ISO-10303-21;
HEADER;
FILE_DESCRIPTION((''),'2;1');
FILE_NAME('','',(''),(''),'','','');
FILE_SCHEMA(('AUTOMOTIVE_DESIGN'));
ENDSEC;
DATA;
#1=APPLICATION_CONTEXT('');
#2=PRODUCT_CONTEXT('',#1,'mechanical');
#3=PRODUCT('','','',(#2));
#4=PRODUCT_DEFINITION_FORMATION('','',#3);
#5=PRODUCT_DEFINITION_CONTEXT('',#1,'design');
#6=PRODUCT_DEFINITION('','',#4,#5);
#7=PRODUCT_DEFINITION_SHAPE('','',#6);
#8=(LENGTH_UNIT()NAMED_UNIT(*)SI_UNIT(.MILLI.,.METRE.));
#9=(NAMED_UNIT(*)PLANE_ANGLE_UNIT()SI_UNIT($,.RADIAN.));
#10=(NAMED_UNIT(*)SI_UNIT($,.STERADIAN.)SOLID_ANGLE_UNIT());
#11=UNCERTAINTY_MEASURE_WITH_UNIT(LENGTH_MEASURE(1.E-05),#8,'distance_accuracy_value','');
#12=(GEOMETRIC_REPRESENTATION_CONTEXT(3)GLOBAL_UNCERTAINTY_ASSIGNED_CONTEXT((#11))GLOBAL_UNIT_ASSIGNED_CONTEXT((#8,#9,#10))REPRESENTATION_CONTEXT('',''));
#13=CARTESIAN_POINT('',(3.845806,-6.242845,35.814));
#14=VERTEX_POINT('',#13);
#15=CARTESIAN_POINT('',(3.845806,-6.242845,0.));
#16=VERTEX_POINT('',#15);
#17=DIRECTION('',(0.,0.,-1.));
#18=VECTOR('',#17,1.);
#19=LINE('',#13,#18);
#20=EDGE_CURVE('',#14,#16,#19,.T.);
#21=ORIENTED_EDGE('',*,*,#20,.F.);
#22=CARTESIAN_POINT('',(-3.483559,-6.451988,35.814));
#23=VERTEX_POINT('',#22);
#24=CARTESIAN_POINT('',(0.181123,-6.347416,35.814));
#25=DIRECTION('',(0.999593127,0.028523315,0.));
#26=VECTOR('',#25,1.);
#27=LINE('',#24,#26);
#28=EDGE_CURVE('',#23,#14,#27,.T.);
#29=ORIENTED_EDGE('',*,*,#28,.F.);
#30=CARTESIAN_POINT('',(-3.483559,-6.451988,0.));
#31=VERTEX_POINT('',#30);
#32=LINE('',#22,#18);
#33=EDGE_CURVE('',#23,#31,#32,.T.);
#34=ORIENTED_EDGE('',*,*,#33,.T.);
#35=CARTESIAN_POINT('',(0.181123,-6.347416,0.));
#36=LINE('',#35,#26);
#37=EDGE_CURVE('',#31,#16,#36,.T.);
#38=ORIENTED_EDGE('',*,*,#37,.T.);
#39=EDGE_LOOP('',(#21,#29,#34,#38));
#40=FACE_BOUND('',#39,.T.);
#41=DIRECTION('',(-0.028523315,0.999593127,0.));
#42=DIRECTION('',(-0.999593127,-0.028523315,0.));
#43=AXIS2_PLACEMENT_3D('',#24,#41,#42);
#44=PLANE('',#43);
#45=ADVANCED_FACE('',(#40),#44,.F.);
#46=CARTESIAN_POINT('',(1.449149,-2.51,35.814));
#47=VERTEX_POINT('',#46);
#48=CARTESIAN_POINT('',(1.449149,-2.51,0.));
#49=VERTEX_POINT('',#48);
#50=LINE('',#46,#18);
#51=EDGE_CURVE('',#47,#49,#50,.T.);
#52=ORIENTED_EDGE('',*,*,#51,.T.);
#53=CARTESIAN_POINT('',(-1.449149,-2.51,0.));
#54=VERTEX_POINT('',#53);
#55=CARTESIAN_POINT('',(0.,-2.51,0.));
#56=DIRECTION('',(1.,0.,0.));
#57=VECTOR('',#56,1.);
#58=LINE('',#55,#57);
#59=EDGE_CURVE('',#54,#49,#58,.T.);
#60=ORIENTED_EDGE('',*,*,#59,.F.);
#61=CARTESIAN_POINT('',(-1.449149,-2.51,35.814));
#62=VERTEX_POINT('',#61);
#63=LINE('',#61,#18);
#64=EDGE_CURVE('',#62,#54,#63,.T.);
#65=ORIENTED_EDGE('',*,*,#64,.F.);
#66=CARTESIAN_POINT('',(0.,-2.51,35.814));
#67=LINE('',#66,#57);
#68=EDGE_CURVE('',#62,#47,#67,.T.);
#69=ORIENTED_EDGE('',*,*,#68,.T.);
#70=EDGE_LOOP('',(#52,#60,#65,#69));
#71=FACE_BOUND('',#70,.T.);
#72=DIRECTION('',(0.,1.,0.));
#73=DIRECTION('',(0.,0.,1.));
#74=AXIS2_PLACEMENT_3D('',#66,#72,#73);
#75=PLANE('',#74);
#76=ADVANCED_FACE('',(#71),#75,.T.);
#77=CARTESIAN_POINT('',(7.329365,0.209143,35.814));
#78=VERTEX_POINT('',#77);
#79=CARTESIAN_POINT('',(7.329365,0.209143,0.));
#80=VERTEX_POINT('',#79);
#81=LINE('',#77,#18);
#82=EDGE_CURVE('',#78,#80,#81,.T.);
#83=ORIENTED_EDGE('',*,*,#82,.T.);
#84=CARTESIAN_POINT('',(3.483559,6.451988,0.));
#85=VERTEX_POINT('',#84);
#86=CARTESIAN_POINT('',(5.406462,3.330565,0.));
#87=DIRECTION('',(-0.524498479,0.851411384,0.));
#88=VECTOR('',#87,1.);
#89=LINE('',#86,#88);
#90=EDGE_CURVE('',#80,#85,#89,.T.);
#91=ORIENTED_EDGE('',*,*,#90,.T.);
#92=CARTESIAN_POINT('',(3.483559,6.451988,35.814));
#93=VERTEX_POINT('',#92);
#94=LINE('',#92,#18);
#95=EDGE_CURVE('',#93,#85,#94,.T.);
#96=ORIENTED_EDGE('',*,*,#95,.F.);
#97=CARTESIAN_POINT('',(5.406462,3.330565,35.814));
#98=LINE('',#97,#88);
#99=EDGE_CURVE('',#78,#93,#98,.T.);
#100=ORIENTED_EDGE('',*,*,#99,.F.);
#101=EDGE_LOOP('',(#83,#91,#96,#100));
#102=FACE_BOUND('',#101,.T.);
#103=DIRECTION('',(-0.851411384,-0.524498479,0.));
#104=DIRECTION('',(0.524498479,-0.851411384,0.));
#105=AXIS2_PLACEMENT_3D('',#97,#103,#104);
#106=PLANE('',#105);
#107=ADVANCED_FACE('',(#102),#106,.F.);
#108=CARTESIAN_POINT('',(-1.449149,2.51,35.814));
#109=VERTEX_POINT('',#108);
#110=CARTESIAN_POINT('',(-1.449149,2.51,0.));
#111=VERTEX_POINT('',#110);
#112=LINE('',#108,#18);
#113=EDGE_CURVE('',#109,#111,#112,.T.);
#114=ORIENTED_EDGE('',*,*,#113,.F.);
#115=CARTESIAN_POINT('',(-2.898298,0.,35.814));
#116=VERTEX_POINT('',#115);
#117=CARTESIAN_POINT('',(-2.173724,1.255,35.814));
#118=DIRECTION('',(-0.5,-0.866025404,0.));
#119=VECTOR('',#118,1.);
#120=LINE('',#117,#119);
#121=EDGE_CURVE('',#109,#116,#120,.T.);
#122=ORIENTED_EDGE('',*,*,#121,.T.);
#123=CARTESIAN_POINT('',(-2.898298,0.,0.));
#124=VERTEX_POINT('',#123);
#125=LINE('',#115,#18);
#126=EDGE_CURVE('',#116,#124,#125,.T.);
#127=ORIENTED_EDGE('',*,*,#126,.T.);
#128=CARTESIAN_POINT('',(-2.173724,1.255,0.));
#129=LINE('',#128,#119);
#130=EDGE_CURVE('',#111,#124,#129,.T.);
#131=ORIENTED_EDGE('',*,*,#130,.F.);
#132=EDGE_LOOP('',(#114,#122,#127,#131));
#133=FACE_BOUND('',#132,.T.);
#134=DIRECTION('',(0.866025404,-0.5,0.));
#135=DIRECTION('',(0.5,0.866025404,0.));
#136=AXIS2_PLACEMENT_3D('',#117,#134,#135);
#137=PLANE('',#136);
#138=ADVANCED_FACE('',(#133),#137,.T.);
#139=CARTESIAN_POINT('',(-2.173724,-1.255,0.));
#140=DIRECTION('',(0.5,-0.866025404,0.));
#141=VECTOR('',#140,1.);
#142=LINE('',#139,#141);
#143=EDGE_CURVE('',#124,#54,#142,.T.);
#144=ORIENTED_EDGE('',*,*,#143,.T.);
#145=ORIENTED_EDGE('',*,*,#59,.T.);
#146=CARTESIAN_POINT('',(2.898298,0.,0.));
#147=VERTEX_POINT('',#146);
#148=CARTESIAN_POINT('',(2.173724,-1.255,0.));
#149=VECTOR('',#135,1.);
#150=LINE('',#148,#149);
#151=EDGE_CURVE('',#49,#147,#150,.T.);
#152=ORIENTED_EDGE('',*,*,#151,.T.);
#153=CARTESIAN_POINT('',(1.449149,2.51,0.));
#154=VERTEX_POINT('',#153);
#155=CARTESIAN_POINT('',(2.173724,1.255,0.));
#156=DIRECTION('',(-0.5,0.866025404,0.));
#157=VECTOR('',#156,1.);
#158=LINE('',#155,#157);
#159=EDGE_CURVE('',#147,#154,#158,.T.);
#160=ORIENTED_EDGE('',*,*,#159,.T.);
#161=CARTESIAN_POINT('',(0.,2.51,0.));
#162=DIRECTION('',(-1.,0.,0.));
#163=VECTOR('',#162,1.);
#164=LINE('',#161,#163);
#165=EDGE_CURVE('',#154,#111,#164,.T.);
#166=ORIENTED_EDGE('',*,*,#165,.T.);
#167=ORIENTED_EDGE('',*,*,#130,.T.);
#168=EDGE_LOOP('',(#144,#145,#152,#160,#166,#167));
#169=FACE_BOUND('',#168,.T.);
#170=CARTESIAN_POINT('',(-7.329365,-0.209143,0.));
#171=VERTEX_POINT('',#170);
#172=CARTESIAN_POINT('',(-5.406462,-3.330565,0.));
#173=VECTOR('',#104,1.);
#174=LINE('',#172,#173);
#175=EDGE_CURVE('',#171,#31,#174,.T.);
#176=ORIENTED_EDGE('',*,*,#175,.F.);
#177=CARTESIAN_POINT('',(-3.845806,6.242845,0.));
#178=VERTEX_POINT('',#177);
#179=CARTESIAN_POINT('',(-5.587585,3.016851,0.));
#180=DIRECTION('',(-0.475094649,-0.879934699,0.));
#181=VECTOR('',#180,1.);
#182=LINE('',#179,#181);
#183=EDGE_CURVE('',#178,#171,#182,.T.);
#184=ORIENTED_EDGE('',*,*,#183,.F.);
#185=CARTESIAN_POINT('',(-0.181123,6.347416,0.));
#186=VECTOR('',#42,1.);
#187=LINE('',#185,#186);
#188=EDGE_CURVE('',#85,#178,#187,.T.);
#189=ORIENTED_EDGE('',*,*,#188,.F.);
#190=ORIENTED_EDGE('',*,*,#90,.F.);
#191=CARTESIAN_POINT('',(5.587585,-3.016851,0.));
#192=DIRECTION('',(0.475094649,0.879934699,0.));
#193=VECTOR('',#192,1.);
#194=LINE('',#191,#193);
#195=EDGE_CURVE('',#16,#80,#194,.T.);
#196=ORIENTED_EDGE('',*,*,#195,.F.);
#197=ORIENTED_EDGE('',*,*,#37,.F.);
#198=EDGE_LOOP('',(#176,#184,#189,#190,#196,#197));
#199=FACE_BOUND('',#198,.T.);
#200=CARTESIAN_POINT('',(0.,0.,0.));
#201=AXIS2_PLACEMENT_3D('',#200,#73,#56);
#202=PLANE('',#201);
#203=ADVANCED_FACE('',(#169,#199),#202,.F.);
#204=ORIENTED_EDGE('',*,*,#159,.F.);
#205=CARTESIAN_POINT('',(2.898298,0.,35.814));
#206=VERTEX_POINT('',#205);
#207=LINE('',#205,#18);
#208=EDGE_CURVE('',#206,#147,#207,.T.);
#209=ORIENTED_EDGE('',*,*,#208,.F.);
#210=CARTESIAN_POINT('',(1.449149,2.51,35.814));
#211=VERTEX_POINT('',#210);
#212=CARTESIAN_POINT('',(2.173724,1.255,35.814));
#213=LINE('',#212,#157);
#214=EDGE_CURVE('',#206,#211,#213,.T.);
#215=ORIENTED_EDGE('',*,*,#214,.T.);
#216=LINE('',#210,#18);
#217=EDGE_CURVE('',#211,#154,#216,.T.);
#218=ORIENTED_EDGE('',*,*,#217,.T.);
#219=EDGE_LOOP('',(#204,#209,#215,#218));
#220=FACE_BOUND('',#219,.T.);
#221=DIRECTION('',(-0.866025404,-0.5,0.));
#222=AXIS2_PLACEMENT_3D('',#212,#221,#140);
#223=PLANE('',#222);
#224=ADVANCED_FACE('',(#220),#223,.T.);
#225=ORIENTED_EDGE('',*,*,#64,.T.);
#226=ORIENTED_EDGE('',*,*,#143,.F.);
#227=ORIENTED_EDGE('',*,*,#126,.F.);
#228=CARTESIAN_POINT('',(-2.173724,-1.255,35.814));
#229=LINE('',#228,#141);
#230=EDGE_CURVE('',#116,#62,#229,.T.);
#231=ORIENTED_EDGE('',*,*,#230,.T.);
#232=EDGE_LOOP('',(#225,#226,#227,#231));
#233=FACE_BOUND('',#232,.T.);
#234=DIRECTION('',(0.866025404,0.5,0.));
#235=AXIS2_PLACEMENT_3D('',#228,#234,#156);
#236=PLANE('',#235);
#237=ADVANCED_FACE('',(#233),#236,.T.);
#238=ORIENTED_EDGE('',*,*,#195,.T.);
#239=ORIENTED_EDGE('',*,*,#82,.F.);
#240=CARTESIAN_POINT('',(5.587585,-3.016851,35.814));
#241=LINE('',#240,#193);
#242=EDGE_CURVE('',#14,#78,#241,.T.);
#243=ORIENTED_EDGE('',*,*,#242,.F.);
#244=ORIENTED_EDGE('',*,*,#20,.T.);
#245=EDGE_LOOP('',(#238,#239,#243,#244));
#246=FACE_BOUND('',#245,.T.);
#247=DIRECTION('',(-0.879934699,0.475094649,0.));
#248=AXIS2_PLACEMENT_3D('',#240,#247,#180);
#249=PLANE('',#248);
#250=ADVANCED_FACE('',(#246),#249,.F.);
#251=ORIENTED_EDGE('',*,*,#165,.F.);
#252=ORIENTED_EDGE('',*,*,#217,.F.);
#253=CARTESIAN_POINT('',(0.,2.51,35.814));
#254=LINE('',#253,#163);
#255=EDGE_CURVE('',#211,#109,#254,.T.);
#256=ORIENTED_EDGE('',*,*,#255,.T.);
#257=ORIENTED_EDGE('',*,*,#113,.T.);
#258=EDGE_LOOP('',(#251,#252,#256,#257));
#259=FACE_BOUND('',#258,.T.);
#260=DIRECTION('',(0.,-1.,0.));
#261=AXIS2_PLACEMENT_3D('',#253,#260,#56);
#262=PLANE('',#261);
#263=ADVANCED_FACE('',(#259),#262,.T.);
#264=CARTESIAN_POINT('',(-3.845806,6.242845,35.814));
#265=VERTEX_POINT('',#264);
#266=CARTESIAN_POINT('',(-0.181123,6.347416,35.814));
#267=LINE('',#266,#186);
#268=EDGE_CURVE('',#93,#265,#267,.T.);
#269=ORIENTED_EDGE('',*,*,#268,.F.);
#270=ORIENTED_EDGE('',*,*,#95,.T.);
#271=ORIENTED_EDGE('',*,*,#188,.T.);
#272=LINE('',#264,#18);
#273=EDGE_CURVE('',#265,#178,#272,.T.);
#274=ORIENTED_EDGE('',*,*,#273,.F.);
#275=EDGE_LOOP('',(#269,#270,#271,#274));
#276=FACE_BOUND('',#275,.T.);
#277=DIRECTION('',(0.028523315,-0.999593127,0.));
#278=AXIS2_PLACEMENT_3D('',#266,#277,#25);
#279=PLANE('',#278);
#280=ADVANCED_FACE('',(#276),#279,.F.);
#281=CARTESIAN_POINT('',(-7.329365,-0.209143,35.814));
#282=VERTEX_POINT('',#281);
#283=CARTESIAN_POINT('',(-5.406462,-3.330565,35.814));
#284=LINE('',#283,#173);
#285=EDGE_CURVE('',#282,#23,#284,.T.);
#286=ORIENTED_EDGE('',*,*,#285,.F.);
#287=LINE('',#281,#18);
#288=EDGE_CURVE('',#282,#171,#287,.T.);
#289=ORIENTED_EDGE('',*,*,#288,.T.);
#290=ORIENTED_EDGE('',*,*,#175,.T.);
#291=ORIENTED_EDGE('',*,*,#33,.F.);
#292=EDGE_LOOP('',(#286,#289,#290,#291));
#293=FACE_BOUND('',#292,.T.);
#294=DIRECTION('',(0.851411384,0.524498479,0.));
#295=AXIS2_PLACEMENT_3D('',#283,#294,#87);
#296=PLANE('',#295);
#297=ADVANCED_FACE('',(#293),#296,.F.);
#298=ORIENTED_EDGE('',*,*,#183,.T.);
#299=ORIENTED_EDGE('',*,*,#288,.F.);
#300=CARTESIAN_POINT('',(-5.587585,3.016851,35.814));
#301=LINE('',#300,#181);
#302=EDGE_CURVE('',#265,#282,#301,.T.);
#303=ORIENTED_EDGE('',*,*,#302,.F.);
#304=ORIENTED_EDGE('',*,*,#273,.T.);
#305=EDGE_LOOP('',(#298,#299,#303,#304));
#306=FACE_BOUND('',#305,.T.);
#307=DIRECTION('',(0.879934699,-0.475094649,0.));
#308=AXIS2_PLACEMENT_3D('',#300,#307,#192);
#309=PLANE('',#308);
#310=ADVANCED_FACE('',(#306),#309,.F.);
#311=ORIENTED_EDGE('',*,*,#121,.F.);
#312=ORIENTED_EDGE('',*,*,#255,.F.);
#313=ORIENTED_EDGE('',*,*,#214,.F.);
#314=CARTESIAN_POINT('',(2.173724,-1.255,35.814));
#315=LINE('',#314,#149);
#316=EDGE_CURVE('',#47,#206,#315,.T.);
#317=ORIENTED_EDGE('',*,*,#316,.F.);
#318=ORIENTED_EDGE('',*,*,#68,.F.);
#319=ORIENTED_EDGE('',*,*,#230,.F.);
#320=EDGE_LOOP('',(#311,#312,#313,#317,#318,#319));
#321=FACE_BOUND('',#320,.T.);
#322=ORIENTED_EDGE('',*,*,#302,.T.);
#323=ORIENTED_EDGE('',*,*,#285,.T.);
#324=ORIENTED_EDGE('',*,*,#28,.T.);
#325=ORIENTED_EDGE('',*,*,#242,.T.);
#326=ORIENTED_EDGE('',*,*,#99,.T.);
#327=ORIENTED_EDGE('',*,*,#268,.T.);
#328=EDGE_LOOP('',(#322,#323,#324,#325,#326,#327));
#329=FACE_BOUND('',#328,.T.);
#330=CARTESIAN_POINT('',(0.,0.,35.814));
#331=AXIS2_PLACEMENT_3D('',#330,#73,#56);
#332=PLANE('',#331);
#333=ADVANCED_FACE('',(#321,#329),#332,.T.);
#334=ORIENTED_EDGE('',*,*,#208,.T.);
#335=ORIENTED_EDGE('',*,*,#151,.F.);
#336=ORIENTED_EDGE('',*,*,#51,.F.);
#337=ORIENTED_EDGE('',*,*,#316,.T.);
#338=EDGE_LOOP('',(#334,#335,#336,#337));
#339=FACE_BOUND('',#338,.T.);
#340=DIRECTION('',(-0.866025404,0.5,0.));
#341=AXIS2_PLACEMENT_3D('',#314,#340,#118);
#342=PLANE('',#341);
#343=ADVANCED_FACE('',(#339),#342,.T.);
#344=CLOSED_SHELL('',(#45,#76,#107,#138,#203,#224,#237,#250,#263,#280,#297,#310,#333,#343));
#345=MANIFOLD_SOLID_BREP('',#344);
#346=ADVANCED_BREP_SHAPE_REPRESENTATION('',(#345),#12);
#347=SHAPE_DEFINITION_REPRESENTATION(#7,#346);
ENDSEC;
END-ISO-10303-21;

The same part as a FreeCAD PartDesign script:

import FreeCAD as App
import Part
import Sketcher
from FreeCAD import Vector
Q = App.Units.Quantity


def add_polygon(sketch, points):
    """Adds a closed chain of lines whose ends are joined by coincident constraints."""
    first, n = sketch.GeometryCount, len(points)
    for a, b in zip(points, points[1:] + points[:1]):
        sketch.addGeometry(Part.LineSegment(App.Vector(*a, 0), App.Vector(*b, 0)), False)
    for i in range(n):
        sketch.addConstraint(Sketcher.Constraint("Coincident", first + i, 2, first + (i + 1) % n, 1))

doc = App.newDocument("Part")
body = doc.addObject("PartDesign::Body", "Body")

# Sketch on XY plane
sketch1 = doc.addObject("Sketcher::SketchObject", "Sketch")
body.addObject(sketch1)
sketch1.AttachmentSupport = (doc.XY_Plane, [""])
sketch1.MapMode = "FlatFace"
add_polygon(sketch1, [(-3.5, -6.5), (3.8, -6.2), (7.3, 0.2), (3.5, 6.5), (-3.8, 6.2), (-7.3, -0.2)])  # lines 0-5
add_polygon(sketch1, [(2.9, 0), (1.4, -2.5), (-1.4, -2.5), (-2.9, 0), (-1.4, 2.5), (1.4, 2.5)])  # lines 6-11
sketch1.addConstraint(Sketcher.Constraint("Horizontal", 7))
sketch1.addConstraint(Sketcher.Constraint("Horizontal", 10))
sketch1.addConstraint(Sketcher.Constraint("Symmetric", 0, 2, 3, 2, -1, 1))
sketch1.addConstraint(Sketcher.Constraint("Symmetric", 1, 2, 4, 2, -1, 1))
sketch1.addConstraint(Sketcher.Constraint("Symmetric", 2, 2, 5, 2, -1, 1))
sketch1.addConstraint(Sketcher.Constraint("Symmetric", 6, 2, 9, 2, -1, 1))
sketch1.addConstraint(Sketcher.Constraint("Symmetric", 8, 2, 11, 2, -1, 1))
sketch1.addConstraint(Sketcher.Constraint("PointOnObject", 8, 2, -1))
sketch1.addConstraint(Sketcher.Constraint("Parallel", 8, 11))
sketch1.addConstraint(Sketcher.Constraint("Vertical", 7, 2, 9, 2))
sketch1.addConstraint(Sketcher.Constraint("Equal", 0, 1))
sketch1.addConstraint(Sketcher.Constraint("Equal", 1, 2))
sketch1.addConstraint(Sketcher.Constraint("Angle", 6, Q("-120 deg")))
sketch1.addConstraint(Sketcher.Constraint("DistanceX", 7, 2, 7, 1, Q("2.898298 mm")))
sketch1.addConstraint(Sketcher.Constraint("DistanceY", 7, 2, 3, 2, Q("0.3446002 in")))
sketch1.addConstraint(Sketcher.Constraint("Distance", 6, Q("2.898298 mm")))
sketch1.addConstraint(Sketcher.Constraint("Distance", 0, Q("7.332348 mm")))
sketch1.addConstraint(Sketcher.Constraint("DistanceX", -1, 1, 2, 2, Q("3.483559 mm")))
sketch1.addConstraint(Sketcher.Constraint("DistanceX", 0, 2, 1, 2, Q("3.483559 mm")))
pad1 = doc.addObject("PartDesign::Pad", "Pad")
body.addObject(pad1)
pad1.Profile = sketch1
pad1.Length = Q("1.41 in")

doc.recompute()
